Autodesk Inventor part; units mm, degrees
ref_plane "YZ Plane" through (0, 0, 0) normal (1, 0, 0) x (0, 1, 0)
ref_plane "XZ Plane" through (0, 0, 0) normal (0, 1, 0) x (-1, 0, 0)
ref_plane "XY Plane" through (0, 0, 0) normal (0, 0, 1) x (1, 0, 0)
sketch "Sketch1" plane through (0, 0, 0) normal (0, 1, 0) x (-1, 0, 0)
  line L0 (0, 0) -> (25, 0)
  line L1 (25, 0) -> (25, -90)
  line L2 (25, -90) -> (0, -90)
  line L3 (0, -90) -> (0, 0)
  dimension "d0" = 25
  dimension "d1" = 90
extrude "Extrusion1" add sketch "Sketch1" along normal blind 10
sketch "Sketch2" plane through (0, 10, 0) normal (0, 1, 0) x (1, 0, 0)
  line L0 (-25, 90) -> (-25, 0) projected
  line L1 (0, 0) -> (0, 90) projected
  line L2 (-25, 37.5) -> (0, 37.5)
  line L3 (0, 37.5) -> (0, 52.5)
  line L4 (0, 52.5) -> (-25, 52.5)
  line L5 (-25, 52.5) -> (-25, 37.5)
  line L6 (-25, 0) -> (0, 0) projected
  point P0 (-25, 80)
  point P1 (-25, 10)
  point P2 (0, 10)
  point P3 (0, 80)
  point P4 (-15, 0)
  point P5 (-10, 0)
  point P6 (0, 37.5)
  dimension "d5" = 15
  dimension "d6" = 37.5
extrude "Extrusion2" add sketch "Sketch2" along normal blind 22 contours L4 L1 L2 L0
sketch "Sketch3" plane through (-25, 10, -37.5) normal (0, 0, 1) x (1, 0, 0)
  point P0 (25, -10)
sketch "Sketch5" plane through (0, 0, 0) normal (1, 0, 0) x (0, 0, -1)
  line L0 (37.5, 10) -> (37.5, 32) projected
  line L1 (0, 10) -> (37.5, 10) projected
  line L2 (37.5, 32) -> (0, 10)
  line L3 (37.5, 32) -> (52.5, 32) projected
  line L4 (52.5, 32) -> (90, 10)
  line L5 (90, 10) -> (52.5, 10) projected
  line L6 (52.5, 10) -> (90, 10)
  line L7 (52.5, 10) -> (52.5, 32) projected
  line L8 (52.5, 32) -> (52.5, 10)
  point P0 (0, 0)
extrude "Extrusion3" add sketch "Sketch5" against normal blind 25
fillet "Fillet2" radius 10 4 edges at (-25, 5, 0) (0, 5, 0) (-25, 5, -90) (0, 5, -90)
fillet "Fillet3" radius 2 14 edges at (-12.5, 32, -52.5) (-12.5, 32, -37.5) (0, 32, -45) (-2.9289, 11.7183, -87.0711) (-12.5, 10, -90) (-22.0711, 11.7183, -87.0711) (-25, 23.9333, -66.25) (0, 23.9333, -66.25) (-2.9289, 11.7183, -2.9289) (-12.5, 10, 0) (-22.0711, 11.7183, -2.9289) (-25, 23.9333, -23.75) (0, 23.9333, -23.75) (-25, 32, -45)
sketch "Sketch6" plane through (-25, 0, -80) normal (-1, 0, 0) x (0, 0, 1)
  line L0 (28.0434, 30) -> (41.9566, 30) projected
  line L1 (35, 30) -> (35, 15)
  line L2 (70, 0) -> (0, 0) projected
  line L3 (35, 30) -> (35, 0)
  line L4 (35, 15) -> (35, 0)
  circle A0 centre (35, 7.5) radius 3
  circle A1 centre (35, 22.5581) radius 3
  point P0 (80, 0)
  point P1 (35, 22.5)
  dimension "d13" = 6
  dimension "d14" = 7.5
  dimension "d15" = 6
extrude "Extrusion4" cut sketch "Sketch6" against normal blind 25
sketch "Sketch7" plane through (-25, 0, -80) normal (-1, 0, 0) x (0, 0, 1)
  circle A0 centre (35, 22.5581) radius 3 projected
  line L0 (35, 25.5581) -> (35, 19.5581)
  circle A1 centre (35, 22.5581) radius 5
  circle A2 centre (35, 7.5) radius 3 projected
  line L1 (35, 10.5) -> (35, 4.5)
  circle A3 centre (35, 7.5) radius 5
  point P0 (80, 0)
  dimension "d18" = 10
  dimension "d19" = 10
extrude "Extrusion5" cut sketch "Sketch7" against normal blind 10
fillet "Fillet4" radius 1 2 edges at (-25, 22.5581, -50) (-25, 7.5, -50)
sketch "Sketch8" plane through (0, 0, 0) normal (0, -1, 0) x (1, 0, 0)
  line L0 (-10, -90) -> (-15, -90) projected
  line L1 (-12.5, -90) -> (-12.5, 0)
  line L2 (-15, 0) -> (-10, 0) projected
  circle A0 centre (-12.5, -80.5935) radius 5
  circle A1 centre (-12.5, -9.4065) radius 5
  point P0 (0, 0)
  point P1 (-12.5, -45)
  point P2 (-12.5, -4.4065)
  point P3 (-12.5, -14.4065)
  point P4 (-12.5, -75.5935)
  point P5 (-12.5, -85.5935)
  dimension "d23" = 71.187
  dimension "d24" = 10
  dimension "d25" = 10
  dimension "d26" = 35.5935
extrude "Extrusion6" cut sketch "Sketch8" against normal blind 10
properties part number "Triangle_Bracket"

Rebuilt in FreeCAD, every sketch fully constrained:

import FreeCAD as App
import Part
import Sketcher
from FreeCAD import Vector
Q = App.Units.Quantity


def edges_at(feature, points):
    """Names of the edges that pass closest to the given points."""
    edges = feature.Shape.Edges
    near = lambda p: min(range(len(edges)), key=lambda i: edges[i].distToShape(Part.Vertex(*p))[0])
    return sorted({f"Edge{near(p) + 1}" for p in points})

doc = App.newDocument("Part")
body = doc.addObject("PartDesign::Body", "Body")

# Sketch on XZ plane
sketch1 = doc.addObject("Sketcher::SketchObject", "Sketch")
body.addObject(sketch1)
sketch1.AttachmentSupport = (doc.XZ_Plane, [""])
sketch1.MapMode = "FlatFace"
sketch1.addGeometry([
    Part.LineSegment(Vector(-25, 0, 0), Vector(0, 0, 0)),
    Part.LineSegment(Vector(0, 0, 0), Vector(0, -90, 0)),
    Part.LineSegment(Vector(0, -90, 0), Vector(-25, -90, 0)),
    Part.LineSegment(Vector(-25, -90, 0), Vector(-25, 0, 0)),
], False)
sketch1.addConstraint([
    Sketcher.Constraint("Coincident", 0, 2, 1, 1),
    Sketcher.Constraint("Coincident", 1, 2, 2, 1),
    Sketcher.Constraint("Coincident", 2, 2, 3, 1),
    Sketcher.Constraint("Coincident", 3, 2, 0, 1),
    Sketcher.Constraint("Horizontal", 0),
    Sketcher.Constraint("Vertical", 1),
    Sketcher.Constraint("Horizontal", 2),
    Sketcher.Constraint("Vertical", 3),
    Sketcher.Constraint("Coincident", 0, 2, -1, 1),
    Sketcher.Constraint("DistanceX", 0, 1, 0, 2, Q("25 mm")),
    Sketcher.Constraint("DistanceY", 1, 2, 1, 1, Q("90 mm")),
])
pad1 = doc.addObject("PartDesign::Pad", "Pad")
body.addObject(pad1)
pad1.Profile = sketch1
pad1.Length = 10
pad1.Reversed = True

# Sketch on XZ plane
sketch2 = doc.addObject("Sketcher::SketchObject", "Sketch001")
body.addObject(sketch2)
sketch2.AttachmentSupport = (doc.XZ_Plane, [""])
sketch2.MapMode = "FlatFace"
sketch2.AttachmentOffset = App.Placement(Vector(0, 0, -10), App.Rotation())
sketch2.addGeometry([
    Part.LineSegment(Vector(0, -52, 0), Vector(-25, -52, 0)),
    Part.LineSegment(Vector(-25, -52, 0), Vector(-25, -38, 0)),
    Part.LineSegment(Vector(-25, -38, 0), Vector(0, -38, 0)),
    Part.LineSegment(Vector(0, -38, 0), Vector(0, -52, 0)),
], False)
sketch2.addConstraint([
    Sketcher.Constraint("Coincident", 0, 2, 1, 1),
    Sketcher.Constraint("Coincident", 1, 2, 2, 1),
    Sketcher.Constraint("Coincident", 2, 2, 3, 1),
    Sketcher.Constraint("Coincident", 3, 2, 0, 1),
    Sketcher.Constraint("Horizontal", 0),
    Sketcher.Constraint("Vertical", 1),
    Sketcher.Constraint("Horizontal", 2),
    Sketcher.Constraint("Vertical", 3),
    Sketcher.Constraint("PointOnObject", 2, 2, -2),
    Sketcher.Constraint("DistanceY", 1, 1, 1, 2, Q("15 mm")),
    Sketcher.Constraint("DistanceY", 1, 2, -1, 1, Q("37.5 mm")),
    Sketcher.Constraint("DistanceX", 0, 2, 0, 1, Q("25 mm")),
])
pad2 = doc.addObject("PartDesign::Pad", "Pad001")
body.addObject(pad2)
pad2.Profile = sketch2
pad2.Length = 22
pad2.Reversed = True

# Sketch on YZ plane
sketch3 = doc.addObject("Sketcher::SketchObject", "Sketch002")
body.addObject(sketch3)
sketch3.AttachmentSupport = (doc.YZ_Plane, [""])
sketch3.MapMode = "FlatFace"
sketch3.addGeometry([
    Part.LineSegment(Vector(10, 0, 0), Vector(10, -38, 0)),  # 0
    Part.LineSegment(Vector(10, -38, 0), Vector(32, -38, 0)),  # 1
    Part.LineSegment(Vector(32, -38, 0), Vector(10, 0, 0)),  # 2
    Part.LineSegment(Vector(10, -90, 0), Vector(32, -52, 0)),  # 3
    Part.LineSegment(Vector(32, -52, 0), Vector(10, -52, 0)),  # 4
    Part.LineSegment(Vector(10, -52, 0), Vector(10, -90, 0)),  # 5
], False)
sketch3.addConstraint([
    Sketcher.Constraint("Coincident", 0, 2, 1, 1),
    Sketcher.Constraint("Coincident", 1, 2, 2, 1),
    Sketcher.Constraint("Coincident", 2, 2, 0, 1),
    Sketcher.Constraint("Coincident", 3, 2, 4, 1),
    Sketcher.Constraint("Coincident", 4, 2, 5, 1),
    Sketcher.Constraint("Coincident", 5, 2, 3, 1),
    Sketcher.Constraint("Vertical", 0),
    Sketcher.Constraint("Horizontal", 1),
    Sketcher.Constraint("Horizontal", 4),
    Sketcher.Constraint("Vertical", 5),
    Sketcher.Constraint("PointOnObject", 2, 2, -1),
    Sketcher.Constraint("Vertical", 1, 2, 3, 2),
    Sketcher.Constraint("Vertical", 2, 2, 4, 2),
    Sketcher.Constraint("Equal", 0, 5),
    Sketcher.Constraint("DistanceX", 1, 1, 1, 2, Q("22 mm")),
    Sketcher.Constraint("DistanceY", 0, 2, 0, 1, Q("37.5 mm")),
    Sketcher.Constraint("DistanceX", -1, 1, 0, 2, Q("10 mm")),
    Sketcher.Constraint("DistanceY", 5, 2, -1, 1, Q("90 mm")),
])
pad3 = doc.addObject("PartDesign::Pad", "Pad002")
body.addObject(pad3)
pad3.Profile = sketch3
pad3.Length = 25
pad3.Reversed = True
doc.recompute()

fillet = doc.addObject("PartDesign::Fillet", "Fillet")
body.addObject(fillet)
fillet.Base = (pad3, edges_at(pad3, [
    (-25, 5, 0),
    (0, 5, 0),
    (-25, 5, -90),
    (0, 5, -90),
]))
fillet.Radius = 10
doc.recompute()

fillet2 = doc.addObject("PartDesign::Fillet", "Fillet001")
body.addObject(fillet2)
fillet2.Base = (fillet, edges_at(fillet, [
    (-12.5, 32, -52.5),
    (-12.5, 32, -37.5),
    (0, 32, -45),
    (-2.929, 11.718, -87.071),
    (-12.5, 10, -90),
    (-22.071, 11.718, -87.071),
    (-25, 23.933, -66.25),
    (0, 23.933, -66.25),
    (-2.929, 11.718, -2.929),
    (-12.5, 10, 0),
    (-22.071, 11.718, -2.929),
    (-25, 23.933, -23.75),
    (0, 23.933, -23.75),
    (-25, 32, -45),
]))
fillet2.Radius = 2

# Sketch on YZ plane
sketch4 = doc.addObject("Sketcher::SketchObject", "Sketch003")
body.addObject(sketch4)
sketch4.AttachmentSupport = (doc.YZ_Plane, [""])
sketch4.MapMode = "FlatFace"
sketch4.AttachmentOffset = App.Placement(Vector(0, 0, -25), App.Rotation())
sketch4.addGeometry([
    Part.Circle(Vector(22.6, -45, 0), Vector(0, 0, 1), 3),
    Part.Circle(Vector(7.5, -45, 0), Vector(0, 0, 1), 3),
], False)
sketch4.addConstraint([
    Sketcher.Constraint("Equal", 0, 1),
    Sketcher.Constraint("Horizontal", 0, 3, 1, 3),
    Sketcher.Constraint("Diameter", 0, Q("6 mm")),
    Sketcher.Constraint("DistanceX", -1, 1, 1, 3, Q("7.5 mm")),
    Sketcher.Constraint("DistanceY", 0, 3, -1, 1, Q("45 mm")),
    Sketcher.Constraint("DistanceX", -1, 1, 0, 3, Q("22.558 mm")),
])
pocket1 = doc.addObject("PartDesign::Pocket", "Pocket")
body.addObject(pocket1)
pocket1.Profile = sketch4
pocket1.Length = 25
pocket1.Reversed = True

# Sketch on YZ plane
sketch5 = doc.addObject("Sketcher::SketchObject", "Sketch004")
body.addObject(sketch5)
sketch5.AttachmentSupport = (doc.YZ_Plane, [""])
sketch5.MapMode = "FlatFace"
sketch5.AttachmentOffset = App.Placement(Vector(0, 0, -25), App.Rotation())
sketch5.addGeometry([
    Part.Circle(Vector(22.6, -45, 0), Vector(0, 0, 1), 5),
    Part.Circle(Vector(22.6, -45, 0), Vector(0, 0, 1), 3),
    Part.Circle(Vector(7.5, -45, 0), Vector(0, 0, 1), 5),
    Part.Circle(Vector(7.5, -45, 0), Vector(0, 0, 1), 3),
], False)
sketch5.addConstraint([
    Sketcher.Constraint("Coincident", 1, 3, 0, 3),
    Sketcher.Constraint("Coincident", 3, 3, 2, 3),
    Sketcher.Constraint("Equal", 0, 2),
    Sketcher.Constraint("Equal", 1, 3),
    Sketcher.Constraint("Horizontal", 1, 3, 2, 3),
    Sketcher.Constraint("Diameter", 0, Q("10 mm")),
    Sketcher.Constraint("Diameter", 1, Q("6 mm")),
    Sketcher.Constraint("DistanceY", 0, 3, -1, 1, Q("45 mm")),
    Sketcher.Constraint("DistanceX", -1, 1, 2, 3, Q("7.5 mm")),
    Sketcher.Constraint("DistanceX", -1, 1, 0, 3, Q("22.558 mm")),
])
pocket2 = doc.addObject("PartDesign::Pocket", "Pocket001")
body.addObject(pocket2)
pocket2.Profile = sketch5
pocket2.Length = 10
pocket2.Reversed = True
doc.recompute()

fillet3 = doc.addObject("PartDesign::Fillet", "Fillet002")
body.addObject(fillet3)
fillet3.Base = (pocket2, edges_at(pocket2, [(-25, 22.558, -50), (-25, 7.5, -50)]))
fillet3.Radius = 1

# Sketch on XZ plane
sketch6 = doc.addObject("Sketcher::SketchObject", "Sketch005")
body.addObject(sketch6)
sketch6.AttachmentSupport = (doc.XZ_Plane, [""])
sketch6.MapMode = "FlatFace"
sketch6.addGeometry([
    Part.Circle(Vector(-12, -81, 0), Vector(0, 0, 1), 5),
    Part.Circle(Vector(-12, -9, 0), Vector(0, 0, 1), 5),
], False)
sketch6.addConstraint([
    Sketcher.Constraint("Equal", 0, 1),
    Sketcher.Constraint("Vertical", 0, 3, 1, 3),
    Sketcher.Constraint("Diameter", 0, Q("10 mm")),
    Sketcher.Constraint("DistanceY", 0, 3, 1, 3, Q("71.187 mm")),
    Sketcher.Constraint("DistanceX", 0, 3, -1, 1, Q("12.5 mm")),
    Sketcher.Constraint("DistanceY", 0, 3, -1, 1, Q("80.5935 mm")),
])
pocket3 = doc.addObject("PartDesign::Pocket", "Pocket002")
body.addObject(pocket3)
pocket3.Profile = sketch6
pocket3.Length = 10

doc.recompute()
